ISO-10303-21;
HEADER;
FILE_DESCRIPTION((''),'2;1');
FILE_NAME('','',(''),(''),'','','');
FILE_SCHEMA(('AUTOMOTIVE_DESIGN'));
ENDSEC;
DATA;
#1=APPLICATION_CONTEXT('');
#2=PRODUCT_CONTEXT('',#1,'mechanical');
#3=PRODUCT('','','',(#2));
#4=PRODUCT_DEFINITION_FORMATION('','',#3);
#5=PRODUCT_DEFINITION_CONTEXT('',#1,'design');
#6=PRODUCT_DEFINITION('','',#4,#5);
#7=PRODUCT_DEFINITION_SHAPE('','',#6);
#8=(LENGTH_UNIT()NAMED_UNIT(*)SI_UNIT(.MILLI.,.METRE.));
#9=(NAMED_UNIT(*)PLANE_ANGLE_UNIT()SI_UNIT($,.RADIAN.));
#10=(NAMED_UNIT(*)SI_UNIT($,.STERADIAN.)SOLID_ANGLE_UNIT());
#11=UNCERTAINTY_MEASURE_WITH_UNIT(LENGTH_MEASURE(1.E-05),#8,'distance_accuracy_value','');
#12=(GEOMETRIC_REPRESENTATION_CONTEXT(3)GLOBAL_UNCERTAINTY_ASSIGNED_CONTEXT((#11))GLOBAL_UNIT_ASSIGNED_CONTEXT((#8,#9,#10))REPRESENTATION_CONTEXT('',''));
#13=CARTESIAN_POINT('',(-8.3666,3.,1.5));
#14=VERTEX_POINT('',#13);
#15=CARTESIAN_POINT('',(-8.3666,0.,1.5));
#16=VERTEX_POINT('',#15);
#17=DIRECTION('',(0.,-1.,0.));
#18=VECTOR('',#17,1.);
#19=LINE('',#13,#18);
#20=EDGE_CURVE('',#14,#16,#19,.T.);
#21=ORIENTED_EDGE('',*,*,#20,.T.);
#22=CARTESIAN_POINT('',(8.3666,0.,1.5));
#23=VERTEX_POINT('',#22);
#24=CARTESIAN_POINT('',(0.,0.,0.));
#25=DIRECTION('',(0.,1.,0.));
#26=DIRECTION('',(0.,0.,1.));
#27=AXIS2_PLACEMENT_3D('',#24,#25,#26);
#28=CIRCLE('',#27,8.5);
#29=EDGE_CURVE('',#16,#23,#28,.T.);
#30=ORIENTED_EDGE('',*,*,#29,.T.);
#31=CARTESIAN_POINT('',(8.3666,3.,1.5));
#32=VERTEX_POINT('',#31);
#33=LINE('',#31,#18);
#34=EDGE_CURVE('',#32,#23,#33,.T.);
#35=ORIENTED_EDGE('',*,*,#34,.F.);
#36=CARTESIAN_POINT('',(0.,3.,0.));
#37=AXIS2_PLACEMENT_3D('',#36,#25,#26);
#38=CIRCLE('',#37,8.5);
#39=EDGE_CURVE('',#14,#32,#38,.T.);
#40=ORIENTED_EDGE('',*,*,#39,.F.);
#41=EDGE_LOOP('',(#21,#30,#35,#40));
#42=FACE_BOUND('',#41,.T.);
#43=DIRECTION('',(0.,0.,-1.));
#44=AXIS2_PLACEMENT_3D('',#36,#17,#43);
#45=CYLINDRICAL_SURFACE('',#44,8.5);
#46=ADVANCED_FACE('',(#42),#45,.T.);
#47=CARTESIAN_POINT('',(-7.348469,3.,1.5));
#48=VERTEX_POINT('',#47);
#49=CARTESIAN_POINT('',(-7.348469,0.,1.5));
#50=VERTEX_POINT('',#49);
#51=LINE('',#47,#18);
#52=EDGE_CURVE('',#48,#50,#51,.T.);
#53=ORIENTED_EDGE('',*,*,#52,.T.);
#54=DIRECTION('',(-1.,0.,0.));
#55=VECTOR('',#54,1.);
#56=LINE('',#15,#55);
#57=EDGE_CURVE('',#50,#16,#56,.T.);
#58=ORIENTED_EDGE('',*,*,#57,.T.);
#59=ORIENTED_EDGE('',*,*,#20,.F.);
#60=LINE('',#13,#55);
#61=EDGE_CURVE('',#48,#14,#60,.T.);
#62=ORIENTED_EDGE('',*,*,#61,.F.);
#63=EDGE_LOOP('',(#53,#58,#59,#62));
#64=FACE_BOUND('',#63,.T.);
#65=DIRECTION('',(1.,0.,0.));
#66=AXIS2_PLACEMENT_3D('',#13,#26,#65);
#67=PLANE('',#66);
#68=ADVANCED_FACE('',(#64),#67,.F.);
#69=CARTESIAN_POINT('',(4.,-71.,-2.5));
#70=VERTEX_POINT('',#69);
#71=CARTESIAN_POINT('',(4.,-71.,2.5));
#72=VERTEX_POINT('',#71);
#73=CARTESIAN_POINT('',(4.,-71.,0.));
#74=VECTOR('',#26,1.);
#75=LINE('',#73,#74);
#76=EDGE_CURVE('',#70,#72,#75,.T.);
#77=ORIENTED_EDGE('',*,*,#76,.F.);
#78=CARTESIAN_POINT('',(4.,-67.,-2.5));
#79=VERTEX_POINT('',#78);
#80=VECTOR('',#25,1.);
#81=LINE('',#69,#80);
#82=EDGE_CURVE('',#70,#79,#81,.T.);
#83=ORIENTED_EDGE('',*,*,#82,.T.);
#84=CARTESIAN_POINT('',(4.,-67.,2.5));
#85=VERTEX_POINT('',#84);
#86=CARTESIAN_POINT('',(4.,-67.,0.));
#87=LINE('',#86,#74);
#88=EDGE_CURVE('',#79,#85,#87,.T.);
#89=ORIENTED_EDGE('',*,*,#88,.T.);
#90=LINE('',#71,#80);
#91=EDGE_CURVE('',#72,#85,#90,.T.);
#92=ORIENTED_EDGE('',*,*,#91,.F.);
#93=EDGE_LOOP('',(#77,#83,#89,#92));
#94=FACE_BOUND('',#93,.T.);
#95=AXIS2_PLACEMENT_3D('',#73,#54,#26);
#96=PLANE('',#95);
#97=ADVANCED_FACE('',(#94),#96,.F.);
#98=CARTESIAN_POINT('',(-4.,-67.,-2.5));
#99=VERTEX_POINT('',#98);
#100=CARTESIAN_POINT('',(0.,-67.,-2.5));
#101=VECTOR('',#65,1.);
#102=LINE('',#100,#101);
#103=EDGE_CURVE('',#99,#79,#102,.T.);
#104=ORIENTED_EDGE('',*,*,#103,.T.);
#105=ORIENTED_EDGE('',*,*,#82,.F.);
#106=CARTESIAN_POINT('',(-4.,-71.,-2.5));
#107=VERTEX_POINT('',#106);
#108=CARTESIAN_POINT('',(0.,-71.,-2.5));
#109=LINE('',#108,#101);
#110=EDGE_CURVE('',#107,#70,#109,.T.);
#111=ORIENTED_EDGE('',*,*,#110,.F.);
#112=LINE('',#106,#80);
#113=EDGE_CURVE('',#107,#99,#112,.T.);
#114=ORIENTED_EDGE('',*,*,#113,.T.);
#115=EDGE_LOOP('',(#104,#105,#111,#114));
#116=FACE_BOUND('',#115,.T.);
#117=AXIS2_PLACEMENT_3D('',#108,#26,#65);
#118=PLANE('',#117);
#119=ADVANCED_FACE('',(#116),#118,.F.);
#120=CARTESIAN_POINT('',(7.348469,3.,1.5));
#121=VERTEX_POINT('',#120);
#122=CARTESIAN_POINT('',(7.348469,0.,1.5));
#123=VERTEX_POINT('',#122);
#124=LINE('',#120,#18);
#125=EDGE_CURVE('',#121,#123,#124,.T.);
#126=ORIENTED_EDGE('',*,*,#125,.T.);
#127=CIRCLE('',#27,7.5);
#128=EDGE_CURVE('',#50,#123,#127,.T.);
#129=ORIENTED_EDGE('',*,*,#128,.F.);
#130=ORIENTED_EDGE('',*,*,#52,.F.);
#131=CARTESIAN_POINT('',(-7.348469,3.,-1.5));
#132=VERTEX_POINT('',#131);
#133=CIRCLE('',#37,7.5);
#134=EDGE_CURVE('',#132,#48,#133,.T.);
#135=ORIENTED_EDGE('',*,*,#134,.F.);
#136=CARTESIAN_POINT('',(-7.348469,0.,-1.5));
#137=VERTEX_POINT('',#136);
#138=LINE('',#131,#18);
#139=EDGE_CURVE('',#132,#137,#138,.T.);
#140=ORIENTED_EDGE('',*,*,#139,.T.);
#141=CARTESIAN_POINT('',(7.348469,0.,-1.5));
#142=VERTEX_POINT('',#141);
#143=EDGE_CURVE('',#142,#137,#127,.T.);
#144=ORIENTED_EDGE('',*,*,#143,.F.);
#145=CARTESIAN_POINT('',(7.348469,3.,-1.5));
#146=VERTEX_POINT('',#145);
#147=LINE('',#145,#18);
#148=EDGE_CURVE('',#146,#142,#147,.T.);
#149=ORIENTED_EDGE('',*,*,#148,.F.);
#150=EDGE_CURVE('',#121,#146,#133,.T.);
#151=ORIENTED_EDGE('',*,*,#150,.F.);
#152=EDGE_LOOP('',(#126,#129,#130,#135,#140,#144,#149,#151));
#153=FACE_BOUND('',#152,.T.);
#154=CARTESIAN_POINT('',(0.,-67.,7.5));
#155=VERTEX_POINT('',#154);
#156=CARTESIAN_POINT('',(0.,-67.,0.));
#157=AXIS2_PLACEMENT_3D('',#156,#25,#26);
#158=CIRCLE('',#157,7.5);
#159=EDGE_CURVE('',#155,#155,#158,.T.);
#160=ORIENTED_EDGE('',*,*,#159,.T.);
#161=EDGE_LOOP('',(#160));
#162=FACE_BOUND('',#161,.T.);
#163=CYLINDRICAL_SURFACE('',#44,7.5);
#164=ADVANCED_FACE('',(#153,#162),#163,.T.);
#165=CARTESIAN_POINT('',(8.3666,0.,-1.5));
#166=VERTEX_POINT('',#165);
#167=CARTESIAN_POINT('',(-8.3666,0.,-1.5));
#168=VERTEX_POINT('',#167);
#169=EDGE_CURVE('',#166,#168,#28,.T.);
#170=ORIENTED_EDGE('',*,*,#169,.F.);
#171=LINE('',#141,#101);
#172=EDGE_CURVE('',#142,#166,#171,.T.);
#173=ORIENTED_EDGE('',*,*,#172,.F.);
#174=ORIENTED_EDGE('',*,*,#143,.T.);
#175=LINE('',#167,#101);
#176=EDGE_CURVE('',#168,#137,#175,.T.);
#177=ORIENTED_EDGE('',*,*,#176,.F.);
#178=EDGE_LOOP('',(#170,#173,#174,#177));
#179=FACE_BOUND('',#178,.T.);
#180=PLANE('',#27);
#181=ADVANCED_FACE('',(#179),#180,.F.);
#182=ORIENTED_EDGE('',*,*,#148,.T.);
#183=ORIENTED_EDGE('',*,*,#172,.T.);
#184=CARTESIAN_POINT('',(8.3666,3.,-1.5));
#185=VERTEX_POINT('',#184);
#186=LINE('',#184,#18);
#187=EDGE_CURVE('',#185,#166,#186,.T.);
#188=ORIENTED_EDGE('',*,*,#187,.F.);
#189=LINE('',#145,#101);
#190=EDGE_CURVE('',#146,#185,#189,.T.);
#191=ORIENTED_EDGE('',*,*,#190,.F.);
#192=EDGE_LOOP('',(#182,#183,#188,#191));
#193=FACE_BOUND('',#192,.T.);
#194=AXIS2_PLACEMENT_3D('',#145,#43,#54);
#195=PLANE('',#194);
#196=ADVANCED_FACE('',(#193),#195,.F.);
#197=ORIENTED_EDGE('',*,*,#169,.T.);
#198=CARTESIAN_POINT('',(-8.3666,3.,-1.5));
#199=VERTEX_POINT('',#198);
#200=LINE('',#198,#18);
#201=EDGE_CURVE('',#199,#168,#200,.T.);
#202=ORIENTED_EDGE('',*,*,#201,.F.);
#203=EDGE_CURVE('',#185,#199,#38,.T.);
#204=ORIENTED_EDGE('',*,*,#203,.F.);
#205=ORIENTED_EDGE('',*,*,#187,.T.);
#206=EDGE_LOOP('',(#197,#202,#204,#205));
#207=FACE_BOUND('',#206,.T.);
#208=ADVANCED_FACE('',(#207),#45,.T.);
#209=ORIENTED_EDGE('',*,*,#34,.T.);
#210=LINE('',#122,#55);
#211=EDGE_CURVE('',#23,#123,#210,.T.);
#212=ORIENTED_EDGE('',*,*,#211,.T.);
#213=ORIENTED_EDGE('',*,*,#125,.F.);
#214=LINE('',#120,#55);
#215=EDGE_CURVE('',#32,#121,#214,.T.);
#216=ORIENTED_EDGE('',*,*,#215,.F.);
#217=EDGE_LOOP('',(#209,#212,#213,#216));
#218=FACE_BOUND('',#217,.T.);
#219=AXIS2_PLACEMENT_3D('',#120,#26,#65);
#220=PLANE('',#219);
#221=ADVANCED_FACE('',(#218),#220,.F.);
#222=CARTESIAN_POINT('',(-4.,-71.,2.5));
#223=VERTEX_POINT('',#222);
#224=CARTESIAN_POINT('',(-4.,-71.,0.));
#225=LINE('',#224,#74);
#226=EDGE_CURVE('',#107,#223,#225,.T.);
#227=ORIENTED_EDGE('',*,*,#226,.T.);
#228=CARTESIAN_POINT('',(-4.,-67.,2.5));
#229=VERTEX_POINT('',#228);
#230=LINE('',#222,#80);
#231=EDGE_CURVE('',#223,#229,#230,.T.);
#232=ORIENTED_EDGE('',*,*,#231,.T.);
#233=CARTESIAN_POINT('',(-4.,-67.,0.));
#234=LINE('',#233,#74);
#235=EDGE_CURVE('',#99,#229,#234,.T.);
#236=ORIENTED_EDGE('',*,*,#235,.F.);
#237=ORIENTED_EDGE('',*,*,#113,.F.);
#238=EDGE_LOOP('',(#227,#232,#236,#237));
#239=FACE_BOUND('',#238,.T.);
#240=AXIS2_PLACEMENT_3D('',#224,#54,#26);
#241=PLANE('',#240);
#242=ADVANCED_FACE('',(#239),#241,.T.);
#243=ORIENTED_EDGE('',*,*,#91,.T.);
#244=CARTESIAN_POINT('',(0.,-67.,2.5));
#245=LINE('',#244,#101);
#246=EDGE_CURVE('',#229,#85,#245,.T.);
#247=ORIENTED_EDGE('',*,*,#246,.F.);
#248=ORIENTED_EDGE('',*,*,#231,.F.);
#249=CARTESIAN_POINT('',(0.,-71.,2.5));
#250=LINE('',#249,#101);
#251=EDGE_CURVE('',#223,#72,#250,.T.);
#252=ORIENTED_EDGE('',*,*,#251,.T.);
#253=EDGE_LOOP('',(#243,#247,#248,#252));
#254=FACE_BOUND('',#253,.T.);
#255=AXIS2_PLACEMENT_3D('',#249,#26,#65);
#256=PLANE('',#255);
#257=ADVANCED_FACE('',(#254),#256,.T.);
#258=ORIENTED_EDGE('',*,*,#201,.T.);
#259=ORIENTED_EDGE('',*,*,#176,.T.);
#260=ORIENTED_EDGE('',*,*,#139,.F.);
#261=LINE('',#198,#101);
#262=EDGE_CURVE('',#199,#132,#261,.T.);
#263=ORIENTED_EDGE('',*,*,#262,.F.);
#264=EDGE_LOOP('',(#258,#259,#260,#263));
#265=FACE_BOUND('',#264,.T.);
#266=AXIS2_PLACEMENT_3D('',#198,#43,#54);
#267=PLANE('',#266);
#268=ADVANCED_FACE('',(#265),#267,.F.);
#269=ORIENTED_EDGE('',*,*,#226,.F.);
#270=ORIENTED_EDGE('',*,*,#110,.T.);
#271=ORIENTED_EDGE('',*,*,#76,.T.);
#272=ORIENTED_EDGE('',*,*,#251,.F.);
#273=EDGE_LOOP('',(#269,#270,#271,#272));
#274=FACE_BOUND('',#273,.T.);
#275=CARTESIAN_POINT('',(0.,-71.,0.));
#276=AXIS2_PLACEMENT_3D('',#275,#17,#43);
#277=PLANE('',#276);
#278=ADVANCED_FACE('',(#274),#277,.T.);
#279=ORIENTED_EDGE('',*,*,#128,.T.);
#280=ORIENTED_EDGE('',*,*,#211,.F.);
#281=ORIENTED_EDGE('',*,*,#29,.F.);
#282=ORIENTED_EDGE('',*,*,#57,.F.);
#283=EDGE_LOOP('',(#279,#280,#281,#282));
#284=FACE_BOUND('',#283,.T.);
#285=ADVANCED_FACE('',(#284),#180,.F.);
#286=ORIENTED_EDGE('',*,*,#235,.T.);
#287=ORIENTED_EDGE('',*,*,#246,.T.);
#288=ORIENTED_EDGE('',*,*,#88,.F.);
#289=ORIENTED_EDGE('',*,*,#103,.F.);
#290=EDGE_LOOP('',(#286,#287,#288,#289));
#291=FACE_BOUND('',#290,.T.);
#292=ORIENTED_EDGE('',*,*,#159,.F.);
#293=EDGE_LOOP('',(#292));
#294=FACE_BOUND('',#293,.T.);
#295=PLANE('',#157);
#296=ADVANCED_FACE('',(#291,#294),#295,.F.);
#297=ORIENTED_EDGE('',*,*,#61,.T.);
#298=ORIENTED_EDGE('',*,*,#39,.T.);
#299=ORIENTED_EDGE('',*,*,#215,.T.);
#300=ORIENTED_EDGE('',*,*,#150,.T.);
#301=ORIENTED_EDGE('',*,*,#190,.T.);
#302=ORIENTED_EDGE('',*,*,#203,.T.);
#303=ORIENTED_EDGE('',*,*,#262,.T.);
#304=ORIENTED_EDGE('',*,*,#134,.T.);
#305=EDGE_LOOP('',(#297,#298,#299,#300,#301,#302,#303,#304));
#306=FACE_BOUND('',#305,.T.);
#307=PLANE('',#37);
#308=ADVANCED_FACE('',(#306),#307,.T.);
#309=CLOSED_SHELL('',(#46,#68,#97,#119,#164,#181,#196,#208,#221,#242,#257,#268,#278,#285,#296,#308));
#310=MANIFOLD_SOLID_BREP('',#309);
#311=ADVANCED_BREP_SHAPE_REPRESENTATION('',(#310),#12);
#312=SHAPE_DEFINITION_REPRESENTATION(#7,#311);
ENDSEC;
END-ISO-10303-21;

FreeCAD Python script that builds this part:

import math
import FreeCAD as App
import Part
import Sketcher

V = App.Vector


def add_polygon(sketch, points):
    """Adds a closed chain of lines whose ends are joined by coincident constraints."""
    first, n = sketch.GeometryCount, len(points)
    for a, b in zip(points, points[1:] + points[:1]):
        sketch.addGeometry(Part.LineSegment(App.Vector(*a, 0), App.Vector(*b, 0)), False)
    for i in range(n):
        sketch.addConstraint(Sketcher.Constraint("Coincident", first + i, 2, first + (i + 1) % n, 1))

doc = App.newDocument("Part")
body = doc.addObject("PartDesign::Body", "Body")

# Sketch on XZ plane
sketch1 = body.newObject("Sketcher::SketchObject", "Sketch")
sketch1.AttachmentSupport = (doc.getObject("XZ_Plane"), [""])
sketch1.MapMode = "FlatFace"
sketch1.addGeometry([
    Part.LineSegment(V(-8.4, -1.5, 0), V(-7.3, -1.5, 0)),  # 0
    Part.ArcOfCircle(Part.Circle(V(0, 0, 0), V(0, 0, 1), 7.5), math.radians(168), math.radians(192)),  # 1
    Part.LineSegment(V(-7.3, 1.5, 0), V(-8.4, 1.5, 0)),  # 2
    Part.ArcOfCircle(Part.Circle(V(0, 0, 0), V(0, 0, 1), 8.5), math.radians(10), math.radians(170)),  # 3
    Part.LineSegment(V(8.4, 1.5, 0), V(7.3, 1.5, 0)),  # 4
    Part.ArcOfCircle(Part.Circle(V(0, 0, 0), V(0, 0, 1), 7.5), math.radians(-12), math.radians(12)),  # 5
    Part.LineSegment(V(7.3, -1.5, 0), V(8.4, -1.5, 0)),  # 6
    Part.ArcOfCircle(Part.Circle(V(0, 0, 0), V(0, 0, 1), 8.5), math.radians(-170), math.radians(-10)),  # 7
], False)
sketch1.addConstraint([
    Sketcher.Constraint("Coincident", 0, 2, 1, 2),
    Sketcher.Constraint("Coincident", 1, 1, 2, 1),
    Sketcher.Constraint("Coincident", 2, 2, 3, 2),
    Sketcher.Constraint("Coincident", 3, 1, 4, 1),
    Sketcher.Constraint("Coincident", 4, 2, 5, 2),
    Sketcher.Constraint("Coincident", 5, 1, 6, 1),
    Sketcher.Constraint("Coincident", 6, 2, 7, 2),
    Sketcher.Constraint("Coincident", 7, 1, 0, 1),
    Sketcher.Constraint("Horizontal", 0),
    Sketcher.Constraint("Horizontal", 2),
    Sketcher.Constraint("Horizontal", 4),
    Sketcher.Constraint("Horizontal", 6),
    Sketcher.Constraint("Coincident", 1, 3, -1, 1),
    Sketcher.Constraint("Coincident", 3, 3, -1, 1),
    Sketcher.Constraint("Coincident", 5, 3, -1, 1),
    Sketcher.Constraint("Coincident", 7, 3, -1, 1),
    Sketcher.Constraint("Equal", 1, 5),
    Sketcher.Constraint("Equal", 3, 7),
    Sketcher.Constraint("Horizontal", 2, 2, 3, 1),
    Sketcher.Constraint("Horizontal", 0, 2, 5, 1),
    Sketcher.Constraint("Vertical", 0, 2, 1, 1),
    Sketcher.Constraint("Radius", 1, 7.5),
    Sketcher.Constraint("Radius", 3, 8.5),
    Sketcher.Constraint("DistanceY", 0, 2, 1, 1, 3.0),
])
pad1 = body.newObject("PartDesign::Pad", "Pad")
pad1.Profile = sketch1
pad1.Length = 3
pad1.Reversed = True

# Sketch on XZ plane
sketch2 = body.newObject("Sketcher::SketchObject", "Sketch001")
sketch2.AttachmentSupport = (doc.getObject("XZ_Plane"), [""])
sketch2.MapMode = "FlatFace"
sketch2.AttachmentOffset = App.Placement(V(0, 0, 67), App.Rotation())
sketch2.addGeometry(Part.Circle(V(0, 0, 0), V(0, 0, 1), 8), False)
sketch2.addConstraint([
    Sketcher.Constraint("Coincident", 0, 3, -1, 1),
    Sketcher.Constraint("Diameter", 0, 15.0),
])
pad2 = body.newObject("PartDesign::Pad", "Pad001")
pad2.Profile = sketch2
pad2.Length = 67
pad2.Reversed = True

# Sketch on XZ plane
sketch3 = body.newObject("Sketcher::SketchObject", "Sketch002")
sketch3.AttachmentSupport = (doc.getObject("XZ_Plane"), [""])
sketch3.MapMode = "FlatFace"
sketch3.AttachmentOffset = App.Placement(V(0, 0, 67), App.Rotation())
add_polygon(sketch3, [(-4, 2), (-4, -2), (4, -2), (4, 2)])  # lines 0-3
sketch3.addConstraint([
    Sketcher.Constraint("Vertical", 0),
    Sketcher.Constraint("Horizontal", 1),
    Sketcher.Constraint("Vertical", 2),
    Sketcher.Constraint("Horizontal", 3),
    Sketcher.Constraint("Symmetric", 0, 2, 2, 2, -1, 1),
    Sketcher.Constraint("DistanceX", 1, 1, 1, 2, 8.0),
    Sketcher.Constraint("DistanceY", 0, 2, 0, 1, 5.0),
])
pad3 = body.newObject("PartDesign::Pad", "Pad002")
pad3.Profile = sketch3
pad3.Length = 4

# Sketch on YZ plane
sketch4 = body.newObject("Sketcher::SketchObject", "Sketch003")
sketch4.AttachmentSupport = (doc.getObject("YZ_Plane"), [""])
sketch4.MapMode = "FlatFace"
add_polygon(sketch4, [(-51, 7.5), (-45, 3.5), (-44, 3.5), (-44, 7.5)])  # lines 0-3
add_polygon(sketch4, [(-62, -3.5), (-62, -7.5), (-56, -7.5), (-61, -3.5)])  # lines 4-7
sketch4.addConstraint([
    Sketcher.Constraint("Horizontal", 1),
    Sketcher.Constraint("Vertical", 2),
    Sketcher.Constraint("Horizontal", 3),
    Sketcher.Constraint("Vertical", 4),
    Sketcher.Constraint("Horizontal", 5),
    Sketcher.Constraint("Horizontal", 7),
    Sketcher.Constraint("Equal", 1, 7),
    Sketcher.Constraint("Equal", 2, 4),
    Sketcher.Constraint("DistanceX", 1, 1, 1, 2, 1.0),
    Sketcher.Constraint("DistanceX", 3, 2, 3, 1, 7.0),
    Sketcher.Constraint("DistanceX", 5, 1, 5, 2, 6.0),
    Sketcher.Constraint("DistanceY", 2, 1, 2, 2, 4.0),
    Sketcher.Constraint("DistanceX", 0, 2, -1, 1, 45.0),
    Sketcher.Constraint("DistanceX", 4, 2, -1, 1, 62.0),
    Sketcher.Constraint("DistanceY", 4, 2, 3, 2, 15.0),
    Sketcher.Constraint("DistanceY", -1, 1, 0, 2, 3.5),
])
pocket1 = body.newObject("PartDesign::Pocket", "Pocket")
pocket1.Profile = sketch4
pocket1.Type = "ThroughAll"
pocket1.Midplane = True

# Sketch on XZ plane
sketch5 = body.newObject("Sketcher::SketchObject", "Sketch004")
sketch5.AttachmentSupport = (doc.getObject("XZ_Plane"), [""])
sketch5.MapMode = "FlatFace"
sketch5.AttachmentOffset = App.Placement(V(0, 0, 67), App.Rotation())
sketch5.addGeometry(Part.Circle(V(0, 0, 0), V(0, 0, 1), 8), False)
sketch5.addConstraint([
    Sketcher.Constraint("Coincident", 0, 3, -1, 1),
    Sketcher.Constraint("Diameter", 0, 15.0),
])
pad4 = body.newObject("PartDesign::Pad", "Pad003")
pad4.Profile = sketch5
pad4.Length = 30
pad4.Reversed = True

doc.recompute()
